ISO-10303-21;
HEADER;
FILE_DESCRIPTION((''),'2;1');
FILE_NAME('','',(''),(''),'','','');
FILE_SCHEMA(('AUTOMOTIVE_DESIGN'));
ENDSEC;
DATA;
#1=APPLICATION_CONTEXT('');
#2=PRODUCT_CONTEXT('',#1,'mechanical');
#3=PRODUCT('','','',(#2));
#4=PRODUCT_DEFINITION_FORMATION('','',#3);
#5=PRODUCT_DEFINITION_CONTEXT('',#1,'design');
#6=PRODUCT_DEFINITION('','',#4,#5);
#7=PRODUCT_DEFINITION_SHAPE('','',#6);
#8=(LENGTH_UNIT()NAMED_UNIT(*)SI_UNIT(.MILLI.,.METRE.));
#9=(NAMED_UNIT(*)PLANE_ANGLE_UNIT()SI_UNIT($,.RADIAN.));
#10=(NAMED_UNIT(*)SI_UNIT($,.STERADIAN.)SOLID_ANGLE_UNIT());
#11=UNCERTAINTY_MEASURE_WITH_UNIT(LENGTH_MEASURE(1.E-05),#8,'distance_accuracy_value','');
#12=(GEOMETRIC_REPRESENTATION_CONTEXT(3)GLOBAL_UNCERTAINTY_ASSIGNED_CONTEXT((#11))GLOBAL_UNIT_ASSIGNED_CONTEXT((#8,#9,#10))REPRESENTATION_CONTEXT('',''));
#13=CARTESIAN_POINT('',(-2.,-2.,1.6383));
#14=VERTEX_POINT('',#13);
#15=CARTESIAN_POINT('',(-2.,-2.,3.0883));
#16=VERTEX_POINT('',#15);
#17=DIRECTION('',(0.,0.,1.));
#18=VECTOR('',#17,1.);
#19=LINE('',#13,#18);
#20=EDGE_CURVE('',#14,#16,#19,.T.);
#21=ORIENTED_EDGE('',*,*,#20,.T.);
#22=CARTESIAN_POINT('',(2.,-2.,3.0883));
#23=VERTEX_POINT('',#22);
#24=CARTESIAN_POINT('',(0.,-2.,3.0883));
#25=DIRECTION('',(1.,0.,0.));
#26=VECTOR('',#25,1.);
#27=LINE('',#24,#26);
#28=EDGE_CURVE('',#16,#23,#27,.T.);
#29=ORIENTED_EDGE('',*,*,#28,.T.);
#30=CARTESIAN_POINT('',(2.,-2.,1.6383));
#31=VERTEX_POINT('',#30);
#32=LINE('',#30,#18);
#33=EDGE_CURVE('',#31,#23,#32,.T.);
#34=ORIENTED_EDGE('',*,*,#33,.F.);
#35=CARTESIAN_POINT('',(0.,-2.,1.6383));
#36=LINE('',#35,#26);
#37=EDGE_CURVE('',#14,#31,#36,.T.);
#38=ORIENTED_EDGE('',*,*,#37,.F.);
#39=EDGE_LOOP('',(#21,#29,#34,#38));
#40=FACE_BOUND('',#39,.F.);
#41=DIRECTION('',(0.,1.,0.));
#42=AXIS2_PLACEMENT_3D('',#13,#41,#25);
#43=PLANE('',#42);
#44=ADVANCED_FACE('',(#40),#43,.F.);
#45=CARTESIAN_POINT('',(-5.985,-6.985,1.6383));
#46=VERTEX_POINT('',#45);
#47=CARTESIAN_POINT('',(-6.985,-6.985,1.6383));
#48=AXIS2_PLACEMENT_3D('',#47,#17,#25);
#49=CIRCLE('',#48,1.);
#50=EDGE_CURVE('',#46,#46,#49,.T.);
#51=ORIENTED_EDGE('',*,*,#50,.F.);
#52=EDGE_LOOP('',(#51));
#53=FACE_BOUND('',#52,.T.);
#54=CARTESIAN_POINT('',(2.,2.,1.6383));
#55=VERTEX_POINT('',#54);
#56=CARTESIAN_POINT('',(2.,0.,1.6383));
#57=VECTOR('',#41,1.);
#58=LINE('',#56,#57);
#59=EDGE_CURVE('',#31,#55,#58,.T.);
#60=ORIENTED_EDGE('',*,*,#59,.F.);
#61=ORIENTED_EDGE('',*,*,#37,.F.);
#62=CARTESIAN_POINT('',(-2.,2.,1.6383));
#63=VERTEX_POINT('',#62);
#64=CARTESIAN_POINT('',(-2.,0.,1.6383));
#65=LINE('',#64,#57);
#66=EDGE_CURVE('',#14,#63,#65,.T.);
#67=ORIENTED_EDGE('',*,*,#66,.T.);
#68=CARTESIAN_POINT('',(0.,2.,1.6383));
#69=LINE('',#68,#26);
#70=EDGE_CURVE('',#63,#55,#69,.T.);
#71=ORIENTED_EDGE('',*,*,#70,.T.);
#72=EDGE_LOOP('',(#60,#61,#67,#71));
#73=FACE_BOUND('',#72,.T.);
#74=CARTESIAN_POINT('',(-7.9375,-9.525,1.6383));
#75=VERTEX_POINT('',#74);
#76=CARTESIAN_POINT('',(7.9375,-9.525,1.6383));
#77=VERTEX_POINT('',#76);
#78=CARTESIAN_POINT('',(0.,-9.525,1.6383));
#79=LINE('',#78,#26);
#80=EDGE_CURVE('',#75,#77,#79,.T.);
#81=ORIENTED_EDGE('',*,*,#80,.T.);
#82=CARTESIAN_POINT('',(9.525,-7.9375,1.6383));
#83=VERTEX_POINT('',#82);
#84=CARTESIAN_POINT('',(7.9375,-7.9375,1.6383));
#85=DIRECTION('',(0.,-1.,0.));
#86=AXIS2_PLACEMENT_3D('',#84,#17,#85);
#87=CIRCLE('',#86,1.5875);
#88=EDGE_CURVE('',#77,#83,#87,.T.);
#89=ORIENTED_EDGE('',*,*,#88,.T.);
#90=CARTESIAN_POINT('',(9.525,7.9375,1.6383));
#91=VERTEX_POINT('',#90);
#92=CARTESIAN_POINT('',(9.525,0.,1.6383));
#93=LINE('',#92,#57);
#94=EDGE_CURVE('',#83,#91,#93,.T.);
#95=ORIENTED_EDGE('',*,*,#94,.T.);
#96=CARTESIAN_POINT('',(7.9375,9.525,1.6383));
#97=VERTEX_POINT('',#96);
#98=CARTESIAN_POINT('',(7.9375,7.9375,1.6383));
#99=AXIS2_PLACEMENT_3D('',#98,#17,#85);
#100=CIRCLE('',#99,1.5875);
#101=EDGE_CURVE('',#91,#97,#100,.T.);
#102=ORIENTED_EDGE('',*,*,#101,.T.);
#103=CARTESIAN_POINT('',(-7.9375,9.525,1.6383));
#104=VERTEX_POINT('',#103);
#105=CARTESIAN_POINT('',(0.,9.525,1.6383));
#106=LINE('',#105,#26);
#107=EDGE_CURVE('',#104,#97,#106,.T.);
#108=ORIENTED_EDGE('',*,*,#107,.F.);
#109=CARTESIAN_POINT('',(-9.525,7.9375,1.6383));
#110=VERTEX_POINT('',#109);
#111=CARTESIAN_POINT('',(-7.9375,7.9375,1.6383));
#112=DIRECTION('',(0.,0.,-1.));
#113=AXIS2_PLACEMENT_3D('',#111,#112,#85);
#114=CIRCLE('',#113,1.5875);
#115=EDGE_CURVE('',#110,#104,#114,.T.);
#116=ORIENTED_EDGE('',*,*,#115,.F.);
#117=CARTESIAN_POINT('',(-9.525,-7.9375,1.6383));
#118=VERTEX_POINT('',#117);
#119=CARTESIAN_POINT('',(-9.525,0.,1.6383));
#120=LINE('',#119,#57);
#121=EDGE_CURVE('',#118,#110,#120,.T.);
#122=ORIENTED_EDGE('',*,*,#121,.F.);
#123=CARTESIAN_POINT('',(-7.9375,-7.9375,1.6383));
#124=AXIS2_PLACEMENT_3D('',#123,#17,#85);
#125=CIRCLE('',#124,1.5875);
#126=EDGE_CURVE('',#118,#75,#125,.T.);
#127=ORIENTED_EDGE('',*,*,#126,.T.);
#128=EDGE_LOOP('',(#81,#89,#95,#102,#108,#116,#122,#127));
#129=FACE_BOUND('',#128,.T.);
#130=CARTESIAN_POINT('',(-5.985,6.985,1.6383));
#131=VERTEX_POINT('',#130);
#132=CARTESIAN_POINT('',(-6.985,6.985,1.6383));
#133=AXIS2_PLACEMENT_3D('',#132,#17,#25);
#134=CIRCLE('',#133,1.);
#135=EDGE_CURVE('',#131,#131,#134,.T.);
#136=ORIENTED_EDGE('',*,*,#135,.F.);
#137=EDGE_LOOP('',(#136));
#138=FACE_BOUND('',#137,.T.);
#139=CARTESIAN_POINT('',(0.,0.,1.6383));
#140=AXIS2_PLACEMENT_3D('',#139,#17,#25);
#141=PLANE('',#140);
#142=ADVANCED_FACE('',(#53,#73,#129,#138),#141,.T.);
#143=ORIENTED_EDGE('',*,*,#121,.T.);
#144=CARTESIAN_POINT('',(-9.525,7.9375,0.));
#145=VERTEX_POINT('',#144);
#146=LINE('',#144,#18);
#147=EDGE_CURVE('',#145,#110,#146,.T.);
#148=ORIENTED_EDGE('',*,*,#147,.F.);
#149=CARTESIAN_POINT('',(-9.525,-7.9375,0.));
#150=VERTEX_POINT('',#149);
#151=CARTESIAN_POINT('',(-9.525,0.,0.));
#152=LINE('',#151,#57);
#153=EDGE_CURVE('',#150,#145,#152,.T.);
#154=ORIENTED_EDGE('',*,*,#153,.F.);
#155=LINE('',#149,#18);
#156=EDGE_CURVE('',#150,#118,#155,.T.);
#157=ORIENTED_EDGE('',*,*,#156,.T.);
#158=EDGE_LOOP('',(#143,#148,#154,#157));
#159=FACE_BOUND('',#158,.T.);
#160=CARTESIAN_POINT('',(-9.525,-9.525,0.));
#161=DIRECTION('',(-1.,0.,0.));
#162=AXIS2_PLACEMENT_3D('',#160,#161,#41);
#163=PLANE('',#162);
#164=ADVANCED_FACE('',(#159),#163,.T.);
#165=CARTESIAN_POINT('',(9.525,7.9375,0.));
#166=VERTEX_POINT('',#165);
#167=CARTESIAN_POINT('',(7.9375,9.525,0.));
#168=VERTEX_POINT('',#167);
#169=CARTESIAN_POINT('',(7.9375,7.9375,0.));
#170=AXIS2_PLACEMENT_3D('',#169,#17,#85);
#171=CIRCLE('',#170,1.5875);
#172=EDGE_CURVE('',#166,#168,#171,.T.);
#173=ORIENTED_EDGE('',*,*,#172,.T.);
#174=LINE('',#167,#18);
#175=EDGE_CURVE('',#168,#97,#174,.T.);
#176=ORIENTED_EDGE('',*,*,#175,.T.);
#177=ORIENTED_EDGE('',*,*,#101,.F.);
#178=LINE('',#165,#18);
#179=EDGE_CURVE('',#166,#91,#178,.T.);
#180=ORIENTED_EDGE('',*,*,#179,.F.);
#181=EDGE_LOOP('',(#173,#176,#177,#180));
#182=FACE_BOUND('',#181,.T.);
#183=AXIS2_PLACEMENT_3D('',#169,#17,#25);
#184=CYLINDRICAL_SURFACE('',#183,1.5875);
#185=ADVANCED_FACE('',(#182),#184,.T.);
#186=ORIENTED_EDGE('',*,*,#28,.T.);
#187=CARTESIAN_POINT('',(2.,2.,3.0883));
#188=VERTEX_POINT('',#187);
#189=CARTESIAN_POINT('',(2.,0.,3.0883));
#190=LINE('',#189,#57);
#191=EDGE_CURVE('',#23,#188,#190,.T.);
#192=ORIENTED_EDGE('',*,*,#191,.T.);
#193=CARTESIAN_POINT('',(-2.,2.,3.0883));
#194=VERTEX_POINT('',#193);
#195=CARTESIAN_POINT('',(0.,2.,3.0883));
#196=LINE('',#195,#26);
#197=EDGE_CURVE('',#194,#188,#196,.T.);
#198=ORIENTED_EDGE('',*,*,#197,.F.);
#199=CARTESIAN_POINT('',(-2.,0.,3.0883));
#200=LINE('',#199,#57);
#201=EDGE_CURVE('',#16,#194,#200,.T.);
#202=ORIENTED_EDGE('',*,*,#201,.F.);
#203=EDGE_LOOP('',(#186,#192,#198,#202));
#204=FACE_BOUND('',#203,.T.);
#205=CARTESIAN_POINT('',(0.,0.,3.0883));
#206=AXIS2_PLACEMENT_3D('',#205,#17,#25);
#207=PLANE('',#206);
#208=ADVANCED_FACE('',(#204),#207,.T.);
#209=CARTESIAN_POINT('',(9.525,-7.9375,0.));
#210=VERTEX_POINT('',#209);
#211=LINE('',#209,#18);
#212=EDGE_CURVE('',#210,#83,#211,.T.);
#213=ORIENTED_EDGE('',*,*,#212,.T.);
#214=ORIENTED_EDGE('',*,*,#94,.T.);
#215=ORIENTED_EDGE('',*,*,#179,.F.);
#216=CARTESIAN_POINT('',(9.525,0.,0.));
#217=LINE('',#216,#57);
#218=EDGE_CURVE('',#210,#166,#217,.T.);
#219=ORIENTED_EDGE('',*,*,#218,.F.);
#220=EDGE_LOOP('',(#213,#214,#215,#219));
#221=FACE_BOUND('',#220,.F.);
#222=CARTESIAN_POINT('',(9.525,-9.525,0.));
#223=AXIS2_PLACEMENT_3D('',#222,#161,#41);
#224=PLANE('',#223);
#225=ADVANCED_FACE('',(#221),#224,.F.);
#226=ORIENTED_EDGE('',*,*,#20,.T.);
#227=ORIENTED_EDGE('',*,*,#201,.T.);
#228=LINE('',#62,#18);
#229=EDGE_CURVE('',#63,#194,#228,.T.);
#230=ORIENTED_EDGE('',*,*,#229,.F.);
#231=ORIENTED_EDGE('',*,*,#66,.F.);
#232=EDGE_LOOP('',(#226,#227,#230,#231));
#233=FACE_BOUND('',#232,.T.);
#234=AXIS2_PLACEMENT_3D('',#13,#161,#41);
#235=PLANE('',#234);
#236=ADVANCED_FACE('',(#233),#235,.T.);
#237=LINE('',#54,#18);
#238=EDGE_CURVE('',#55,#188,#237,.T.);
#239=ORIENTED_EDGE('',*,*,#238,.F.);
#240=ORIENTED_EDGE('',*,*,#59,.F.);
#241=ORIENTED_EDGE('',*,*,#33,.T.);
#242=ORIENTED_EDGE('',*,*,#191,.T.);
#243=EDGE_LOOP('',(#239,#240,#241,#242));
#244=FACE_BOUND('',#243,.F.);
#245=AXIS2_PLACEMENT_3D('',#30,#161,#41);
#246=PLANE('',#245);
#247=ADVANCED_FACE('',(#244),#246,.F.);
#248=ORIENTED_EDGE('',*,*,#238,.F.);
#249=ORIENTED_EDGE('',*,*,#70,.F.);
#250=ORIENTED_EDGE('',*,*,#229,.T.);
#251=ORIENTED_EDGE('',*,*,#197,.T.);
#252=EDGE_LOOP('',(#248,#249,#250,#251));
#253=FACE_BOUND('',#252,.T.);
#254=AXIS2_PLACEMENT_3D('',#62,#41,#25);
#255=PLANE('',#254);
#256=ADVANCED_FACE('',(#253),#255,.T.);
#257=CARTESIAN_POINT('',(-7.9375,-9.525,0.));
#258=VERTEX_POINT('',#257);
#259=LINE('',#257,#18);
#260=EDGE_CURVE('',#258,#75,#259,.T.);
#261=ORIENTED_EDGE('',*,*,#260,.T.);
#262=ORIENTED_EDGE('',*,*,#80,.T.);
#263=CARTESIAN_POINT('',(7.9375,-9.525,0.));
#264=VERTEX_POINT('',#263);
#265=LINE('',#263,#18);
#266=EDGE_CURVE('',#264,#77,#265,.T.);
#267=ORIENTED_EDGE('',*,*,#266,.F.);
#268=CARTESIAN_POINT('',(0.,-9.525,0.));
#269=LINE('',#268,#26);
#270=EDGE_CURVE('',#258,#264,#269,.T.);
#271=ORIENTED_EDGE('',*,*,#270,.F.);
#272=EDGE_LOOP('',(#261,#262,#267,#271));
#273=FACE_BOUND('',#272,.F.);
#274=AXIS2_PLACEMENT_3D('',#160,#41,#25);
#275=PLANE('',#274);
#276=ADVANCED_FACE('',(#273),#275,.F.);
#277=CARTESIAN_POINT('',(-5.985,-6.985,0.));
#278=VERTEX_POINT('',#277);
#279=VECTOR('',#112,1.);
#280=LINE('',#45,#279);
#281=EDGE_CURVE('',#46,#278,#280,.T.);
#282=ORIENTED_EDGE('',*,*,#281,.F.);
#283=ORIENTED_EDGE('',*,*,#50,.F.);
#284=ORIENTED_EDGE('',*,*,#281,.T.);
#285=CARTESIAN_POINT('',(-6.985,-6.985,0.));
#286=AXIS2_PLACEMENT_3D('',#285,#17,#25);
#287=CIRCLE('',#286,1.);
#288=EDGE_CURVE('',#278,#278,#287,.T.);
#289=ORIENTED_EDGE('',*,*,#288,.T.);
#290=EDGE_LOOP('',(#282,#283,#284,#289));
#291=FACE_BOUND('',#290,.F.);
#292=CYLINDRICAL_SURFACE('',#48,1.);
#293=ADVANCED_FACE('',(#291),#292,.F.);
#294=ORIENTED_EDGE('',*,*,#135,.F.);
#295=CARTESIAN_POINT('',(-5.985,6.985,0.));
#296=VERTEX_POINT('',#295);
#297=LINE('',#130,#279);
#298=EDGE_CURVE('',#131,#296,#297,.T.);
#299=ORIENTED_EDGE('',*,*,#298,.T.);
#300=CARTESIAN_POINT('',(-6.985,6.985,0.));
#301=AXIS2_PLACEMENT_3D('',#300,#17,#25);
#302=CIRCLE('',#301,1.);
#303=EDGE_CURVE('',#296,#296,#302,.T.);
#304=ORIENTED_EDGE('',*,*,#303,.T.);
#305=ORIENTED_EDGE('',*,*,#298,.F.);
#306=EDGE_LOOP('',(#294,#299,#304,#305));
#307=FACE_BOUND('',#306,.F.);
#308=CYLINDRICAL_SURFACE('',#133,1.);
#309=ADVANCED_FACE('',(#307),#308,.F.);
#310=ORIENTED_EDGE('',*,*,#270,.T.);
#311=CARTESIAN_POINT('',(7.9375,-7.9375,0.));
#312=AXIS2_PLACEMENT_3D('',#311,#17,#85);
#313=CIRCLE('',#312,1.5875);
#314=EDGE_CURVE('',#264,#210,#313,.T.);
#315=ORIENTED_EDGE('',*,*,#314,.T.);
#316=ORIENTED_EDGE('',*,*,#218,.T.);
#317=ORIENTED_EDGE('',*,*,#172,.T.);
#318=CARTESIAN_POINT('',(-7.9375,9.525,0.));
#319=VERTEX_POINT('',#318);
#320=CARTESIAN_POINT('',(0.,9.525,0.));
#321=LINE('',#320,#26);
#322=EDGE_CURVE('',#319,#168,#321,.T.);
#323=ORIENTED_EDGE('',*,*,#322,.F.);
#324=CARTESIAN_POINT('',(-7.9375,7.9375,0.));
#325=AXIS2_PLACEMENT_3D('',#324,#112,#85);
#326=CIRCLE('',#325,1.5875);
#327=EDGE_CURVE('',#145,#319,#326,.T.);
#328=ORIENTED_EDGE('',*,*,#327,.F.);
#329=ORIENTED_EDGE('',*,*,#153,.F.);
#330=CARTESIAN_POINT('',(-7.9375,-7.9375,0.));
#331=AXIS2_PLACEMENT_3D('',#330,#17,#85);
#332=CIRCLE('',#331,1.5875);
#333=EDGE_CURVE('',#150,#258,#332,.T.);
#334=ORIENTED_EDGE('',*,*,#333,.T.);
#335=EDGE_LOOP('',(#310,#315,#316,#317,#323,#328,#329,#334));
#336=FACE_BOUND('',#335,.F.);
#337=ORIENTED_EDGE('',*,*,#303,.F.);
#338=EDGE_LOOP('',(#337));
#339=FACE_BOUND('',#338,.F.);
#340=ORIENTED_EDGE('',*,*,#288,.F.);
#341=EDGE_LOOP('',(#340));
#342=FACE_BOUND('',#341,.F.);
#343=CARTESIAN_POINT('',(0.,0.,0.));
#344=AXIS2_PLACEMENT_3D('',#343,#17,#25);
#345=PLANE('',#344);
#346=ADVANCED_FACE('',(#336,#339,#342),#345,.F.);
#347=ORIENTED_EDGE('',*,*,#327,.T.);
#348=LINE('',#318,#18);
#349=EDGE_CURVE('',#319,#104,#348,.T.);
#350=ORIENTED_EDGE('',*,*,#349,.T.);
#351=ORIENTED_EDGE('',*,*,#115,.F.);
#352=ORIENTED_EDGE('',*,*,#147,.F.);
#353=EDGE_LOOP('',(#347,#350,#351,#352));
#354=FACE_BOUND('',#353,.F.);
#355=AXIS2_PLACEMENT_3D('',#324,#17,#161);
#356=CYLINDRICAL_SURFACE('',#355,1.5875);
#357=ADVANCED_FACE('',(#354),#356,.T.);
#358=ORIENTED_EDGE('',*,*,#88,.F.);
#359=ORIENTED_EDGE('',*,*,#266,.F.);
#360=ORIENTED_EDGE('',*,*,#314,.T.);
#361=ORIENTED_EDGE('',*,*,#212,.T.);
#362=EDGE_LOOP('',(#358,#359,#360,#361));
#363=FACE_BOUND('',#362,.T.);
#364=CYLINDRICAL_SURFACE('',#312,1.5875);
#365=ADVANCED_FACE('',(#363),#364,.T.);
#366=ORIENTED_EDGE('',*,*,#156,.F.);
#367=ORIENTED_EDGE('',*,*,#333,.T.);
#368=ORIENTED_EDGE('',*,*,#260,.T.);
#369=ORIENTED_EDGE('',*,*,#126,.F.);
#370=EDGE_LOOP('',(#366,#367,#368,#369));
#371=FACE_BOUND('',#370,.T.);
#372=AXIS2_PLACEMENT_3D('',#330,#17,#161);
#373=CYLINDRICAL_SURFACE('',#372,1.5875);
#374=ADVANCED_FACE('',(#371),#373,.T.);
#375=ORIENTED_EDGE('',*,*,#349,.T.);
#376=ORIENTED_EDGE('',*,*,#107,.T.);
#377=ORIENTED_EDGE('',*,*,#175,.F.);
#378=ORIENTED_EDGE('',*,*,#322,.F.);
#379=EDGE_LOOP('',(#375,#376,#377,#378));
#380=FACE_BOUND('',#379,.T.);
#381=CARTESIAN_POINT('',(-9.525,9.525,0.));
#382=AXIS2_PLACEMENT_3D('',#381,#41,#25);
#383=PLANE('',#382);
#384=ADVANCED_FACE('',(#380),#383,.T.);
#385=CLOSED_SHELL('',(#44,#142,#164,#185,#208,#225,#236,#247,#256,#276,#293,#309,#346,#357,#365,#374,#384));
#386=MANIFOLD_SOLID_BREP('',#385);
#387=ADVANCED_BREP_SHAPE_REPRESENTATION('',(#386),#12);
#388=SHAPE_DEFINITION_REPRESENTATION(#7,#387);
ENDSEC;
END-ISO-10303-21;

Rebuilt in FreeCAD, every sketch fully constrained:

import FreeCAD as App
import Part
import Sketcher
from FreeCAD import Vector


def edges_at(feature, points):
    """Names of the edges that pass closest to the given points."""
    edges = feature.Shape.Edges
    near = lambda p: min(range(len(edges)), key=lambda i: edges[i].distToShape(Part.Vertex(*p))[0])
    return sorted({f"Edge{near(p) + 1}" for p in points})

doc = App.newDocument("Part")
body = doc.addObject("PartDesign::Body", "Body")

# Sketch on XY plane
sketch1 = body.newObject("Sketcher::SketchObject", "Sketch")
sketch1.AttachmentSupport = (doc.getObject("XY_Plane"), [""])
sketch1.MapMode = "FlatFace"
sketch1.addGeometry([
    Part.LineSegment(Vector(-10, 10, 0), Vector(-10, -10, 0)),
    Part.LineSegment(Vector(-10, -10, 0), Vector(10, -10, 0)),
    Part.LineSegment(Vector(10, -10, 0), Vector(10, 10, 0)),
    Part.LineSegment(Vector(10, 10, 0), Vector(-10, 10, 0)),
], False)
sketch1.addConstraint([
    Sketcher.Constraint("Coincident", 0, 2, 1, 1),
    Sketcher.Constraint("Coincident", 1, 2, 2, 1),
    Sketcher.Constraint("Coincident", 2, 2, 3, 1),
    Sketcher.Constraint("Coincident", 3, 2, 0, 1),
    Sketcher.Constraint("Vertical", 0),
    Sketcher.Constraint("Horizontal", 1),
    Sketcher.Constraint("Vertical", 2),
    Sketcher.Constraint("Horizontal", 3),
    Sketcher.Constraint("Symmetric", 0, 2, 2, 2, -1, 1),
    Sketcher.Constraint("Equal", 3, 0),
    Sketcher.Constraint("DistanceX", 1, 1, 1, 2, 19.05),
])
pad1 = body.newObject("PartDesign::Pad", "Pad")
pad1.Profile = sketch1
pad1.Length = 1.6383
doc.recompute()

fillet = body.newObject("PartDesign::Fillet", "Fillet")
fillet.Base = (pad1, edges_at(pad1, [
    (-9.525, 9.525, 0.819),
    (9.525, 9.525, 0.819),
    (9.525, -9.525, 0.819),
    (-9.525, -9.525, 0.819),
]))
fillet.Radius = 1.5875

# Sketch on XY plane
sketch2 = body.newObject("Sketcher::SketchObject", "Sketch001")
sketch2.AttachmentSupport = (doc.getObject("XY_Plane"), [""])
sketch2.MapMode = "FlatFace"
sketch2.AttachmentOffset = App.Placement(Vector(0, 0, 1.6383), App.Rotation())
sketch2.addGeometry([
    Part.Circle(Vector(-7, 7, 0), Vector(0, 0, 1), 1),
    Part.Circle(Vector(-7, -7, 0), Vector(0, 0, 1), 1),
], False)
sketch2.addConstraint([
    Sketcher.Constraint("Equal", 0, 1),
    Sketcher.Constraint("Symmetric", 0, 3, 1, 3, -1),
    Sketcher.Constraint("Diameter", 0, 2.0),
    Sketcher.Constraint("DistanceY", 1, 3, 0, 3, 13.97),
    Sketcher.Constraint("DistanceX", 0, 3, -1, 1, 6.985),
])
pocket1 = body.newObject("PartDesign::Pocket", "Pocket")
pocket1.Profile = sketch2
pocket1.Type = "ThroughAll"

# Sketch on XY plane
sketch3 = body.newObject("Sketcher::SketchObject", "Sketch002")
sketch3.AttachmentSupport = (doc.getObject("XY_Plane"), [""])
sketch3.MapMode = "FlatFace"
sketch3.AttachmentOffset = App.Placement(Vector(0, 0, 1.6383), App.Rotation())
sketch3.addGeometry([
    Part.LineSegment(Vector(-2, 2, 0), Vector(-2, -2, 0)),
    Part.LineSegment(Vector(-2, -2, 0), Vector(2, -2, 0)),
    Part.LineSegment(Vector(2, -2, 0), Vector(2, 2, 0)),
    Part.LineSegment(Vector(2, 2, 0), Vector(-2, 2, 0)),
], False)
sketch3.addConstraint([
    Sketcher.Constraint("Coincident", 0, 2, 1, 1),
    Sketcher.Constraint("Coincident", 1, 2, 2, 1),
    Sketcher.Constraint("Coincident", 2, 2, 3, 1),
    Sketcher.Constraint("Coincident", 3, 2, 0, 1),
    Sketcher.Constraint("Vertical", 0),
    Sketcher.Constraint("Horizontal", 1),
    Sketcher.Constraint("Vertical", 2),
    Sketcher.Constraint("Horizontal", 3),
    Sketcher.Constraint("Symmetric", 0, 2, 2, 2, -1, 1),
    Sketcher.Constraint("Equal", 3, 0),
    Sketcher.Constraint("DistanceX", 1, 1, 1, 2, 4.0),
])
pad2 = body.newObject("PartDesign::Pad", "Pad001")
pad2.Profile = sketch3
pad2.Length = 1.45

doc.recompute()
